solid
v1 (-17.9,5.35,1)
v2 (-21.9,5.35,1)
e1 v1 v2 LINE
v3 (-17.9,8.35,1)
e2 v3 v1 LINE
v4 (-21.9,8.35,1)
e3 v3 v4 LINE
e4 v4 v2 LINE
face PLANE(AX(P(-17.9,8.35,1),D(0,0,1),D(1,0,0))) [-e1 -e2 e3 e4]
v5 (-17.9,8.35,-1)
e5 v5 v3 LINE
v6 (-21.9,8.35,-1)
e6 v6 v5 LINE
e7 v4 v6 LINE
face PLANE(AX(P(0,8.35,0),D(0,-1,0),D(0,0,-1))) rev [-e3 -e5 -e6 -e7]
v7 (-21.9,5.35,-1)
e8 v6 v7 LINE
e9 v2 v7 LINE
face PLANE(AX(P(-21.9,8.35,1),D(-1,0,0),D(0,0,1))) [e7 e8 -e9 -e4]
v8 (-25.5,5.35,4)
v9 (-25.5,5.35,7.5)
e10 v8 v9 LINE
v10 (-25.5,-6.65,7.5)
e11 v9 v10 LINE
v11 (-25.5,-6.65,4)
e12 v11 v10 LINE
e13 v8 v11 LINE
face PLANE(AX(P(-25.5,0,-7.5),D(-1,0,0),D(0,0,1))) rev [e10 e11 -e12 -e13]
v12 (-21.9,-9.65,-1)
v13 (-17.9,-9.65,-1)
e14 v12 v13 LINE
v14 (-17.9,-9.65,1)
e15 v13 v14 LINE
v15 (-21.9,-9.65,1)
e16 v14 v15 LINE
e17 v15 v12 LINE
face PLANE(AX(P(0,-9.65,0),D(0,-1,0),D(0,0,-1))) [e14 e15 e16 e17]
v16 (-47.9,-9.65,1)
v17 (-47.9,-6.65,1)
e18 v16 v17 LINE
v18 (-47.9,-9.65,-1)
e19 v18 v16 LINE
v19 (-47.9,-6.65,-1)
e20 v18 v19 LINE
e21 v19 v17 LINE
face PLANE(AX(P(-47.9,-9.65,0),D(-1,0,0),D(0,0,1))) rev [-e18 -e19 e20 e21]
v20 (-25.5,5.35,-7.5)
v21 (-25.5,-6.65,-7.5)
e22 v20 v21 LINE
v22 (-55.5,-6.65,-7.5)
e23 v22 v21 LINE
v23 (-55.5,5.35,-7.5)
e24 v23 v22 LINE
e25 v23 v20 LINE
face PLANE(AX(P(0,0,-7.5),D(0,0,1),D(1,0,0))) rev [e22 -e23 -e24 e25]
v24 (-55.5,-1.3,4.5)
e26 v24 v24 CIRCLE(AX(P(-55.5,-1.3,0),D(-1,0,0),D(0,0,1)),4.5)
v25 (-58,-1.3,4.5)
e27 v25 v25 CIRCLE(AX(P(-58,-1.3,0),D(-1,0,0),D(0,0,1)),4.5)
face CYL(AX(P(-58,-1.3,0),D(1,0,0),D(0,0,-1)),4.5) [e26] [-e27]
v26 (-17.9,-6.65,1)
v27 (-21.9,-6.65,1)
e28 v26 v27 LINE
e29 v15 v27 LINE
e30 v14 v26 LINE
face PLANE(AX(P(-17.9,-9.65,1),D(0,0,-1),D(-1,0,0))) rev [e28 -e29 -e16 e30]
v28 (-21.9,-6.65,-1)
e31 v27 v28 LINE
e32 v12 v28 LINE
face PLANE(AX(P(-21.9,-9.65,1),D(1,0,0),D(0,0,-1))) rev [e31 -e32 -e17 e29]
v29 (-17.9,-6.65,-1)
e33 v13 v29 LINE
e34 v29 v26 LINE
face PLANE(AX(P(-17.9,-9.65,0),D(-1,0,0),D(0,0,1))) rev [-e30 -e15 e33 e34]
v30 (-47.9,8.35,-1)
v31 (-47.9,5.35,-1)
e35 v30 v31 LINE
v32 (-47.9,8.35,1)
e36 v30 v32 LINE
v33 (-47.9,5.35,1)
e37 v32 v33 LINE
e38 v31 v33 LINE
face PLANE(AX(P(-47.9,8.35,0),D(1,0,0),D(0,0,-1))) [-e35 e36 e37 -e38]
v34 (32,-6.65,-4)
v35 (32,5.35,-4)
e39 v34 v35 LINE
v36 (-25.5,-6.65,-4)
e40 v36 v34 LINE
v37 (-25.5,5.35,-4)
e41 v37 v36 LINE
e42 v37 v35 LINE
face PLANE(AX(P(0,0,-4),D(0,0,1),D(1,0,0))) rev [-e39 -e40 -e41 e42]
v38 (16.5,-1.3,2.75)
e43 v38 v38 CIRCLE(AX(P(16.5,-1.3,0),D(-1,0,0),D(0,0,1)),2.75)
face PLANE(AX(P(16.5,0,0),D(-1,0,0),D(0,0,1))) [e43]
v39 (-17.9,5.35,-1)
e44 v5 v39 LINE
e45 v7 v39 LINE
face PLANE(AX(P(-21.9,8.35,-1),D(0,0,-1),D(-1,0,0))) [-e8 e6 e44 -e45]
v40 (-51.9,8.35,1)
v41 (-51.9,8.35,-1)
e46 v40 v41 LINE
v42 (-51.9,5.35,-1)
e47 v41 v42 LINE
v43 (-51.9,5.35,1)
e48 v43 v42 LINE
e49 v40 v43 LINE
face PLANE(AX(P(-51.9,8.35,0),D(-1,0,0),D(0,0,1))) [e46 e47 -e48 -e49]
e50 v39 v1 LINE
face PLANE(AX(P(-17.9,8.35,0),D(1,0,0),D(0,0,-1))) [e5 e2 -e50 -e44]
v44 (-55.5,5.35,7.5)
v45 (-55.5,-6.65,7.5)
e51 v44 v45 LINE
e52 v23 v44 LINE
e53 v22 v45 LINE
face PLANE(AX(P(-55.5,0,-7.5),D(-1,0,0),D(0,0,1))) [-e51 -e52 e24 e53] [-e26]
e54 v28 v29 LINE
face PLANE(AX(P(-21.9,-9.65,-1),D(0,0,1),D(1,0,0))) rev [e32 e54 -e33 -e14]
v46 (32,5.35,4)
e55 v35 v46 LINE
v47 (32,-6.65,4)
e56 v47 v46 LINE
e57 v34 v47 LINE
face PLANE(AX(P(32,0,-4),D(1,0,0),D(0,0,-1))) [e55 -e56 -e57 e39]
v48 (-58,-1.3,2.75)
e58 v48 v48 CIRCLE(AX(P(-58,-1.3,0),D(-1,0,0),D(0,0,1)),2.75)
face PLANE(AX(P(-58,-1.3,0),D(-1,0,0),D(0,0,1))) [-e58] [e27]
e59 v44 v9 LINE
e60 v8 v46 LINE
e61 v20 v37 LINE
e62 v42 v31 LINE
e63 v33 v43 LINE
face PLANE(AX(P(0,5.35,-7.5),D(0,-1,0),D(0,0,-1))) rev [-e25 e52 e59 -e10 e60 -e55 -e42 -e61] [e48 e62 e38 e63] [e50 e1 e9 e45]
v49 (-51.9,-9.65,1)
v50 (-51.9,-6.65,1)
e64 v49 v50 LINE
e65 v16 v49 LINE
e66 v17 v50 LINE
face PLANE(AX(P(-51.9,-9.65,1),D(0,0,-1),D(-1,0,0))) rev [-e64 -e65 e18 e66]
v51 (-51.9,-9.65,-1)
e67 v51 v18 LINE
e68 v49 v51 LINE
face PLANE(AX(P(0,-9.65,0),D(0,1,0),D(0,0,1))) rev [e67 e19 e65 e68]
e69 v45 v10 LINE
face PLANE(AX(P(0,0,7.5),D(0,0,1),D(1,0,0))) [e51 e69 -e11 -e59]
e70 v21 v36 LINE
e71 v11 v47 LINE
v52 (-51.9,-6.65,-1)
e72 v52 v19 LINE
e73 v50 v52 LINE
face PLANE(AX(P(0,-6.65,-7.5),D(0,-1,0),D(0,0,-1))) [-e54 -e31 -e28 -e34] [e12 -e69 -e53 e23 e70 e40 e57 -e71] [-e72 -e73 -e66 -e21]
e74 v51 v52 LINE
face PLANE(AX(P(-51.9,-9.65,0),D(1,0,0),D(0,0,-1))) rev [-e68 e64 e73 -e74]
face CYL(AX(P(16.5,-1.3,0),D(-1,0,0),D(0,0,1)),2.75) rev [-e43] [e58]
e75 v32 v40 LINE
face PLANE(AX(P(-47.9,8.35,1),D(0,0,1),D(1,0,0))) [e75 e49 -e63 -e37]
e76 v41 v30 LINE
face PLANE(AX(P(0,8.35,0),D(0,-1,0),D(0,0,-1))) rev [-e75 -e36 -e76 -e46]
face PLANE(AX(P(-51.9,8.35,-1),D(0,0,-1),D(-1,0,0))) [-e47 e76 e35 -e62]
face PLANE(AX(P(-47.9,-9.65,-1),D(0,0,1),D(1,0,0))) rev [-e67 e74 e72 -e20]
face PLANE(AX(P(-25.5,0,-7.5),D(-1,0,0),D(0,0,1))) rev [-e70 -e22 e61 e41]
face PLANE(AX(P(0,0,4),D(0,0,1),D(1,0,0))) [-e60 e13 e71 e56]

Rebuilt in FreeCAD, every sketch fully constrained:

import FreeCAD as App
import Part
import Sketcher
Q = App.Units.Quantity


def add_polygon(sketch, points):
    """Adds a closed chain of lines whose ends are joined by coincident constraints."""
    first, n = sketch.GeometryCount, len(points)
    for a, b in zip(points, points[1:] + points[:1]):
        sketch.addGeometry(Part.LineSegment(App.Vector(*a, 0), App.Vector(*b, 0)), False)
    for i in range(n):
        sketch.addConstraint(Sketcher.Constraint("Coincident", first + i, 2, first + (i + 1) % n, 1))

doc = App.newDocument("Part")
body = doc.addObject("PartDesign::Body", "Body")

sketch1 = body.newObject("Sketcher::SketchObject", "Sketch")
sketch1.AttachmentSupport = (doc.getObject("XY_Plane"), [""])
sketch1.MapMode = "FlatFace"
add_polygon(sketch1, [(-56, 5), (-56, -7), (-26, -7), (-26, 5)])
sketch1.addConstraint([
    Sketcher.Constraint("Vertical", 0),
    Sketcher.Constraint("Horizontal", 1),
    Sketcher.Constraint("Vertical", 2),
    Sketcher.Constraint("Horizontal", 3),
    Sketcher.Constraint("DistanceX", 1, 1, 1, 2, Q("30 mm")),
    Sketcher.Constraint("DistanceY", 0, 2, 0, 1, Q("12 mm")),
    Sketcher.Constraint("DistanceX", 0, 2, -1, 1, Q("55.5 mm")),
    Sketcher.Constraint("DistanceY", 0, 2, -1, 1, Q("6.65 mm")),
])
pad1 = body.newObject("PartDesign::Pad", "Pad")
pad1.Profile = sketch1
pad1.Type = "TwoLengths"
pad1.Length = 7.5
pad1.Length2 = 7.5

sketch2 = body.newObject("Sketcher::SketchObject", "Sketch001")
sketch2.AttachmentSupport = (doc.getObject("XY_Plane"), [""])
sketch2.MapMode = "FlatFace"
add_polygon(sketch2, [(-26, 5), (-26, -7), (32, -7), (32, 5)])
sketch2.addConstraint([
    Sketcher.Constraint("Vertical", 0),
    Sketcher.Constraint("Horizontal", 1),
    Sketcher.Constraint("Vertical", 2),
    Sketcher.Constraint("Horizontal", 3),
    Sketcher.Constraint("DistanceY", 0, 2, 0, 1, Q("12 mm")),
    Sketcher.Constraint("DistanceX", 1, 1, 1, 2, Q("57.5 mm")),
    Sketcher.Constraint("DistanceX", -1, 1, 1, 2, Q("32 mm")),
    Sketcher.Constraint("DistanceY", 0, 2, -1, 1, Q("6.65 mm")),
])
pad2 = body.newObject("PartDesign::Pad", "Pad001")
pad2.Profile = sketch2
pad2.Type = "TwoLengths"
pad2.Length = 4
pad2.Length2 = 4

sketch3 = body.newObject("Sketcher::SketchObject", "Sketch002")
sketch3.AttachmentSupport = (doc.getObject("XZ_Plane"), [""])
sketch3.MapMode = "FlatFace"
sketch3.AttachmentOffset = App.Placement(App.Vector(0, 0, 6.65), App.Rotation())
add_polygon(sketch3, [(-17.9, -1), (-17.9, 1), (-21.9, 1), (-21.9, -1)])
add_polygon(sketch3, [(-47.9, 1), (-51.9, 1), (-51.9, -1), (-47.9, -1)])
sketch3.addConstraint([
    Sketcher.Constraint("Vertical", 0),
    Sketcher.Constraint("Horizontal", 1),
    Sketcher.Constraint("Vertical", 2),
    Sketcher.Constraint("Horizontal", 3),
    Sketcher.Constraint("Horizontal", 4),
    Sketcher.Constraint("Vertical", 5),
    Sketcher.Constraint("Horizontal", 6),
    Sketcher.Constraint("Vertical", 7),
    Sketcher.Constraint("Horizontal", 1, 2, 4, 2),
    Sketcher.Constraint("Horizontal", 3, 2, 5, 2),
    Sketcher.Constraint("Equal", 3, 4),
    Sketcher.Constraint("DistanceX", 1, 2, 1, 1, Q("4 mm")),
    Sketcher.Constraint("DistanceY", 0, 1, 0, 2, Q("2 mm")),
    Sketcher.Constraint("DistanceY", -1, 1, 0, 2, Q("1 mm")),
    Sketcher.Constraint("DistanceX", 4, 2, 1, 2, Q("30 mm")),
    Sketcher.Constraint("DistanceX", 0, 2, -1, 1, Q("17.9 mm")),
])
pad3 = body.newObject("PartDesign::Pad", "Pad002")
pad3.Profile = sketch3
pad3.Length = 3

sketch4 = body.newObject("Sketcher::SketchObject", "Sketch003")
sketch4.AttachmentSupport = (doc.getObject("XZ_Plane"), [""])
sketch4.MapMode = "FlatFace"
sketch4.AttachmentOffset = App.Placement(App.Vector(0, 0, -5.35), App.Rotation())
add_polygon(sketch4, [(-17.9, -1), (-17.9, 1), (-21.9, 1), (-21.9, -1)])
add_polygon(sketch4, [(-47.9, 1), (-51.9, 1), (-51.9, -1), (-47.9, -1)])
sketch4.addConstraint([
    Sketcher.Constraint("Vertical", 0),
    Sketcher.Constraint("Horizontal", 1),
    Sketcher.Constraint("Vertical", 2),
    Sketcher.Constraint("Horizontal", 3),
    Sketcher.Constraint("Horizontal", 4),
    Sketcher.Constraint("Vertical", 5),
    Sketcher.Constraint("Horizontal", 6),
    Sketcher.Constraint("Vertical", 7),
    Sketcher.Constraint("Horizontal", 1, 2, 4, 2),
    Sketcher.Constraint("Horizontal", 3, 2, 5, 2),
    Sketcher.Constraint("Equal", 3, 4),
    Sketcher.Constraint("DistanceX", 1, 2, 1, 1, Q("4 mm")),
    Sketcher.Constraint("DistanceY", 0, 1, 0, 2, Q("2 mm")),
    Sketcher.Constraint("DistanceY", -1, 1, 0, 2, Q("1 mm")),
    Sketcher.Constraint("DistanceX", 4, 2, 1, 2, Q("30 mm")),
    Sketcher.Constraint("DistanceX", 0, 2, -1, 1, Q("17.9 mm")),
])
pad4 = body.newObject("PartDesign::Pad", "Pad003")
pad4.Profile = sketch4
pad4.Length = 3
pad4.Reversed = True

sketch5 = body.newObject("Sketcher::SketchObject", "Sketch004")
sketch5.AttachmentSupport = (doc.getObject("XY_Plane"), [""])
sketch5.MapMode = "FlatFace"
add_polygon(sketch5, [(-56, 5), (-56, -7), (-26, -7), (-26, 5)])
sketch5.addConstraint([
    Sketcher.Constraint("Vertical", 0),
    Sketcher.Constraint("Horizontal", 1),
    Sketcher.Constraint("Vertical", 2),
    Sketcher.Constraint("Horizontal", 3),
    Sketcher.Constraint("DistanceX", 1, 1, 1, 2, Q("30 mm")),
    Sketcher.Constraint("DistanceY", 0, 2, 0, 1, Q("12 mm")),
    Sketcher.Constraint("DistanceX", 0, 2, -1, 1, Q("55.5 mm")),
    Sketcher.Constraint("DistanceY", 0, 2, -1, 1, Q("6.65 mm")),
])
pad5 = body.newObject("PartDesign::Pad", "Pad004")
pad5.Profile = sketch5
pad5.Type = "TwoLengths"
pad5.Length = 7.5
pad5.Length2 = 7.5

sketch6 = body.newObject("Sketcher::SketchObject", "Sketch005")
sketch6.AttachmentSupport = (doc.getObject("YZ_Plane"), [""])
sketch6.MapMode = "FlatFace"
sketch6.AttachmentOffset = App.Placement(App.Vector(0, 0, -55.5), App.Rotation())
sketch6.addGeometry(Part.Circle(App.Vector(-1.3, 0, 0), App.Vector(0, 0, 1), 2.8), False)
sketch6.addConstraint([
    Sketcher.Constraint("PointOnObject", 0, 3, -1),
    Sketcher.Constraint("Diameter", 0, Q("5.5 mm")),
    Sketcher.Constraint("DistanceX", 0, 3, -1, 1, Q("1.3 mm")),
])
pocket1 = body.newObject("PartDesign::Pocket", "Pocket")
pocket1.Profile = sketch6
pocket1.Length = 72
pocket1.Reversed = True

sketch7 = body.newObject("Sketcher::SketchObject", "Sketch006")
sketch7.AttachmentSupport = (doc.getObject("YZ_Plane"), [""])
sketch7.MapMode = "FlatFace"
sketch7.AttachmentOffset = App.Placement(App.Vector(0, 0, -55.5), App.Rotation())
sketch7.addGeometry([
    Part.Circle(App.Vector(-1.3, 0, 0), App.Vector(0, 0, 1), 4.5),
    Part.Circle(App.Vector(-1.3, 0, 0), App.Vector(0, 0, 1), 2.8),
], False)
sketch7.addConstraint([
    Sketcher.Constraint("Coincident", 1, 3, 0, 3),
    Sketcher.Constraint("PointOnObject", 0, 3, -1),
    Sketcher.Constraint("Diameter", 0, Q("9 mm")),
    Sketcher.Constraint("Diameter", 1, Q("5.5 mm")),
    Sketcher.Constraint("DistanceX", 0, 3, -1, 1, Q("1.3 mm")),
])
pad6 = body.newObject("PartDesign::Pad", "Pad005")
pad6.Profile = sketch7
pad6.Length = 2.5
pad6.Reversed = True

doc.recompute()
